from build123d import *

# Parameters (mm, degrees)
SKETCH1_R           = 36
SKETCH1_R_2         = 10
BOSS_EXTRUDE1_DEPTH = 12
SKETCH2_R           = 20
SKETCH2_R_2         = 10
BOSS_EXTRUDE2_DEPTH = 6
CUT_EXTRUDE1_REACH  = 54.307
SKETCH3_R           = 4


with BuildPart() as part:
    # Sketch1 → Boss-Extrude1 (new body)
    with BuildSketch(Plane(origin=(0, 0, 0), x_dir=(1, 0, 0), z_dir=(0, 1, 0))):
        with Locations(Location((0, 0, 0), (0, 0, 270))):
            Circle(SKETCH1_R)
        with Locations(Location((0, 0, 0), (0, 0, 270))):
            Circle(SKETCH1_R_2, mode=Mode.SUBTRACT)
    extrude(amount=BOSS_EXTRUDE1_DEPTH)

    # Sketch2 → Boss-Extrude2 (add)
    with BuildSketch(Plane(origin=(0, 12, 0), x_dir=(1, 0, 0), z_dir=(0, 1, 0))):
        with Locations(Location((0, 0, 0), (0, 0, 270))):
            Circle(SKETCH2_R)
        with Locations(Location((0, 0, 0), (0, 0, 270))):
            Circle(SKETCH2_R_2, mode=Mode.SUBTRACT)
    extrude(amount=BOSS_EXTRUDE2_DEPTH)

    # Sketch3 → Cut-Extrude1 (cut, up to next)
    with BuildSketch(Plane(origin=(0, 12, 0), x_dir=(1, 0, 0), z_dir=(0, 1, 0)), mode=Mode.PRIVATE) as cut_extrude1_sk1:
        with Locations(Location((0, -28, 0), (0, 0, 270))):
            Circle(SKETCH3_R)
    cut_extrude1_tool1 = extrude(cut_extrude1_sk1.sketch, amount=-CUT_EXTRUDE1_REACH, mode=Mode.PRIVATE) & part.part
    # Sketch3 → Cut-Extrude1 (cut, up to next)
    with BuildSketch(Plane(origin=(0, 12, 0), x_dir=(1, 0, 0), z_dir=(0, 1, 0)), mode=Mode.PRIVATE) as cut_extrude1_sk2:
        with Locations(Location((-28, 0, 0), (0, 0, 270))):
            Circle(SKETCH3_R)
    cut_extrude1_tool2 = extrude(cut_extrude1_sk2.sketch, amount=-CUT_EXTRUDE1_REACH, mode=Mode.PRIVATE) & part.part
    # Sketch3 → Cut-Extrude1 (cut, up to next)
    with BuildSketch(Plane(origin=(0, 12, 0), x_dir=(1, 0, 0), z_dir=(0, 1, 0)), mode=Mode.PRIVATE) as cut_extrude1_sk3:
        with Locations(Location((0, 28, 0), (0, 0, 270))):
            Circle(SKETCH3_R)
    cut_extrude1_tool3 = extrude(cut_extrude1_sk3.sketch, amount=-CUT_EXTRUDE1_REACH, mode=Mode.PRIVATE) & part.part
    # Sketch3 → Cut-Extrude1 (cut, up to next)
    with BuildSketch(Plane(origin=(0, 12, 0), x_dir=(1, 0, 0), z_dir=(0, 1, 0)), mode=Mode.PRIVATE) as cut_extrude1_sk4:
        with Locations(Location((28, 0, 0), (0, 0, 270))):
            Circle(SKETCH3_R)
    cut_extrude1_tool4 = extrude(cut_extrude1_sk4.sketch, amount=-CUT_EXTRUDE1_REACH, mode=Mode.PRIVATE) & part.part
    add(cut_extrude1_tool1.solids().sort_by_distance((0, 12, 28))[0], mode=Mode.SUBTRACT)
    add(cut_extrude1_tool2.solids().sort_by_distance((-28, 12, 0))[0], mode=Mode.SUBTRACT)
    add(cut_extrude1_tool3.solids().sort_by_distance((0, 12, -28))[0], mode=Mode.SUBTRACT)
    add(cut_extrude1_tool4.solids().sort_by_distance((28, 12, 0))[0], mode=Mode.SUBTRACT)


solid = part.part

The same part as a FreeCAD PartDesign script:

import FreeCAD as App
import Part
import Sketcher

V = App.Vector

doc = App.newDocument("Part")
body = doc.addObject("PartDesign::Body", "Body")

# Sketch on XZ plane
sketch1 = body.newObject("Sketcher::SketchObject", "Sketch")
sketch1.AttachmentSupport = (doc.getObject("XZ_Plane"), [""])
sketch1.MapMode = "FlatFace"
sketch1.addGeometry([
    Part.Circle(V(0, 0, 0), V(0, 0, 1), 36),
    Part.Circle(V(0, 0, 0), V(0, 0, 1), 10),
], False)
sketch1.addConstraint([
    Sketcher.Constraint("Coincident", 0, 3, -1, 1),
    Sketcher.Constraint("Coincident", 1, 3, -1, 1),
    Sketcher.Constraint("Diameter", 0, 72.0),
    Sketcher.Constraint("Diameter", 1, 20.0),
])
pad1 = body.newObject("PartDesign::Pad", "Pad")
pad1.Profile = sketch1
pad1.Length = 12
pad1.Reversed = True

# Sketch on XZ plane
sketch2 = body.newObject("Sketcher::SketchObject", "Sketch001")
sketch2.AttachmentSupport = (doc.getObject("XZ_Plane"), [""])
sketch2.MapMode = "FlatFace"
sketch2.AttachmentOffset = App.Placement(V(0, 0, -12), App.Rotation())
sketch2.addGeometry([
    Part.Circle(V(0, 0, 0), V(0, 0, 1), 20),
    Part.Circle(V(0, 0, 0), V(0, 0, 1), 10),
], False)
sketch2.addConstraint([
    Sketcher.Constraint("Coincident", 0, 3, -1, 1),
    Sketcher.Constraint("Coincident", 1, 3, -1, 1),
    Sketcher.Constraint("Diameter", 0, 40.0),
    Sketcher.Constraint("Diameter", 1, 20.0),
])
pad2 = body.newObject("PartDesign::Pad", "Pad001")
pad2.Profile = sketch2
pad2.Length = 6
pad2.Reversed = True

# Sketch on XZ plane
sketch3 = body.newObject("Sketcher::SketchObject", "Sketch002")
sketch3.AttachmentSupport = (doc.getObject("XZ_Plane"), [""])
sketch3.MapMode = "FlatFace"
sketch3.AttachmentOffset = App.Placement(V(0, 0, -12), App.Rotation())
sketch3.addGeometry(Part.Circle(V(0, 28, 0), V(0, 0, 1), 4), False)
sketch3.addConstraint([
    Sketcher.Constraint("PointOnObject", 0, 3, -2),
    Sketcher.Constraint("Diameter", 0, 8.0),
    Sketcher.Constraint("DistanceY", -1, 1, 0, 3, 28.0),
])
pocket1 = body.newObject("PartDesign::Pocket", "Pocket")
pocket1.Profile = sketch3
pocket1.Type = "UpToFirst"
pocket1.Reversed = True

# Sketch on XZ plane
sketch4 = body.newObject("Sketcher::SketchObject", "Sketch003")
sketch4.AttachmentSupport = (doc.getObject("XZ_Plane"), [""])
sketch4.MapMode = "FlatFace"
sketch4.AttachmentOffset = App.Placement(V(0, 0, -12), App.Rotation())
sketch4.addGeometry(Part.Circle(V(-28, 0, 0), V(0, 0, 1), 4), False)
sketch4.addConstraint([
    Sketcher.Constraint("PointOnObject", 0, 3, -1),
    Sketcher.Constraint("Diameter", 0, 8.0),
    Sketcher.Constraint("DistanceX", 0, 3, -1, 1, 28.0),
])
pocket2 = body.newObject("PartDesign::Pocket", "Pocket001")
pocket2.Profile = sketch4
pocket2.Type = "UpToFirst"
pocket2.Reversed = True

# Sketch on XZ plane
sketch5 = body.newObject("Sketcher::SketchObject", "Sketch004")
sketch5.AttachmentSupport = (doc.getObject("XZ_Plane"), [""])
sketch5.MapMode = "FlatFace"
sketch5.AttachmentOffset = App.Placement(V(0, 0, -12), App.Rotation())
sketch5.addGeometry(Part.Circle(V(0, -28, 0), V(0, 0, 1), 4), False)
sketch5.addConstraint([
    Sketcher.Constraint("PointOnObject", 0, 3, -2),
    Sketcher.Constraint("Diameter", 0, 8.0),
    Sketcher.Constraint("DistanceY", 0, 3, -1, 1, 28.0),
])
pocket3 = body.newObject("PartDesign::Pocket", "Pocket002")
pocket3.Profile = sketch5
pocket3.Type = "UpToFirst"
pocket3.Reversed = True

# Sketch on XZ plane
sketch6 = body.newObject("Sketcher::SketchObject", "Sketch005")
sketch6.AttachmentSupport = (doc.getObject("XZ_Plane"), [""])
sketch6.MapMode = "FlatFace"
sketch6.AttachmentOffset = App.Placement(V(0, 0, -12), App.Rotation())
sketch6.addGeometry(Part.Circle(V(28, 0, 0), V(0, 0, 1), 4), False)
sketch6.addConstraint([
    Sketcher.Constraint("PointOnObject", 0, 3, -1),
    Sketcher.Constraint("Diameter", 0, 8.0),
    Sketcher.Constraint("DistanceX", -1, 1, 0, 3, 28.0),
])
pocket4 = body.newObject("PartDesign::Pocket", "Pocket003")
pocket4.Profile = sketch6
pocket4.Type = "UpToFirst"
pocket4.Reversed = True

doc.recompute()
